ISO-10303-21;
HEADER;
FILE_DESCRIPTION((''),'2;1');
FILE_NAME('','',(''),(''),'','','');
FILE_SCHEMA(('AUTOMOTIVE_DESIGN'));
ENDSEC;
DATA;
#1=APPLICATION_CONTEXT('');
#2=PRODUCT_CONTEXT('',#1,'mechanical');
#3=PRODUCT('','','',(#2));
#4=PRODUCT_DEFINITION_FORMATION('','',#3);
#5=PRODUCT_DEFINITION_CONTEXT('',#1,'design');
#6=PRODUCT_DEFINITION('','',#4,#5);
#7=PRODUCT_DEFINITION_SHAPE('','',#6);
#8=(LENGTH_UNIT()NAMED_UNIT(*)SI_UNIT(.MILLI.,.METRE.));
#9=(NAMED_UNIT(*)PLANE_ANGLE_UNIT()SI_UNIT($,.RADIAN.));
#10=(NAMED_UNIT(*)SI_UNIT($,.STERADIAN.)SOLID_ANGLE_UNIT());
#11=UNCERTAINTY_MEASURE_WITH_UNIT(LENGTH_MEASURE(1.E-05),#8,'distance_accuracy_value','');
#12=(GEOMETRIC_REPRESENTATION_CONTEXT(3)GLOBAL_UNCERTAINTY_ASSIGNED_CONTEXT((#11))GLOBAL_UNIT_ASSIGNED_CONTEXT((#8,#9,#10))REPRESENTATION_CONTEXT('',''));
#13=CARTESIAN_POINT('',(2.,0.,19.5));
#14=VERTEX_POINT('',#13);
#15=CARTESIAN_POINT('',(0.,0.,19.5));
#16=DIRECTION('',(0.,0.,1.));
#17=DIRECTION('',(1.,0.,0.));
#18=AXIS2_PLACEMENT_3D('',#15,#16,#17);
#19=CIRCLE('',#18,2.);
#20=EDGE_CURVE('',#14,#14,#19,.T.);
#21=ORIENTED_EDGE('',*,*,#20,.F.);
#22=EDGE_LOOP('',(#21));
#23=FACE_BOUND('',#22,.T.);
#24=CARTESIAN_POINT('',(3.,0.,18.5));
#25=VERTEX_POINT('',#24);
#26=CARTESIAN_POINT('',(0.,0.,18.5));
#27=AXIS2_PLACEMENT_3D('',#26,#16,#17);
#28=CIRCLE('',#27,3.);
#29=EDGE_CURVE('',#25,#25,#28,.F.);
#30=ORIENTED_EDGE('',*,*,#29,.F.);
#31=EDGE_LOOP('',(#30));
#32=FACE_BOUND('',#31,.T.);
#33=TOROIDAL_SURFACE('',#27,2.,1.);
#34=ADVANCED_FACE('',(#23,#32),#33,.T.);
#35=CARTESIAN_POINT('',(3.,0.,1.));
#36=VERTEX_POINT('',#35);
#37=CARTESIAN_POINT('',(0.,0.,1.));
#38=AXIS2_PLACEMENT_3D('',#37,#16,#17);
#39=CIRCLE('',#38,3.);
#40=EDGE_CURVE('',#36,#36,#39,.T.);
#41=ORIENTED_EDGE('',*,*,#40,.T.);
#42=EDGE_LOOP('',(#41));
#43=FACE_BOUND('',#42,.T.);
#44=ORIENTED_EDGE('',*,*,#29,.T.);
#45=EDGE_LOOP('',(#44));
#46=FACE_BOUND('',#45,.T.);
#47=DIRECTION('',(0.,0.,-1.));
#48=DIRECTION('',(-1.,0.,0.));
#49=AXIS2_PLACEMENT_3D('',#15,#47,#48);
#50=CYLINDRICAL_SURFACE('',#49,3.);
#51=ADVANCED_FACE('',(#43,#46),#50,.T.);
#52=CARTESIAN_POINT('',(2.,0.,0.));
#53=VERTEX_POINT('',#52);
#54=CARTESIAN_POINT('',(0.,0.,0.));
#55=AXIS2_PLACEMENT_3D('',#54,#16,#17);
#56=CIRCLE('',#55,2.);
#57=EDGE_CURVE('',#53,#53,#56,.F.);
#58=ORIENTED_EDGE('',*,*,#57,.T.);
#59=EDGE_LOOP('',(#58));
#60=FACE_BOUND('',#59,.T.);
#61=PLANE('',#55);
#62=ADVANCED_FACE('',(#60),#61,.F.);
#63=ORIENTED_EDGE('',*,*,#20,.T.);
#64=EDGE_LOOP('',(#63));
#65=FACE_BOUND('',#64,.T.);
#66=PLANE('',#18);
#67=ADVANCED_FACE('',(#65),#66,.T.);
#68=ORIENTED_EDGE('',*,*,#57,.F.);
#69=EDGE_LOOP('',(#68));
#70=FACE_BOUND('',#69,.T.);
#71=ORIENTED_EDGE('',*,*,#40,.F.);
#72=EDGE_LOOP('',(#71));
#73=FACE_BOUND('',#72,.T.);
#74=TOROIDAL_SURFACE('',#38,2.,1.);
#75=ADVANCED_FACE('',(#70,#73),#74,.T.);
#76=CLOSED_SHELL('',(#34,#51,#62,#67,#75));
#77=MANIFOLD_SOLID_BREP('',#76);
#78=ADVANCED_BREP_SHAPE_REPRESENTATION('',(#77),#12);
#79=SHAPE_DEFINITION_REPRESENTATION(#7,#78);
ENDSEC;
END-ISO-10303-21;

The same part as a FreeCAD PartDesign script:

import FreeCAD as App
import Part
import Sketcher

V = App.Vector
Q = App.Units.Quantity


def edges_at(feature, points):
    """Names of the edges that pass closest to the given points."""
    edges = feature.Shape.Edges
    near = lambda p: min(range(len(edges)), key=lambda i: edges[i].distToShape(Part.Vertex(*p))[0])
    return sorted({f"Edge{near(p) + 1}" for p in points})

doc = App.newDocument("Part")
body = doc.addObject("PartDesign::Body", "Body")

# Sketch on XY plane
sketch1 = body.newObject("Sketcher::SketchObject", "Sketch")
sketch1.AttachmentSupport = (doc.getObject("XY_Plane"), [""])
sketch1.MapMode = "FlatFace"
sketch1.addGeometry(Part.Circle(V(0, 0, 0), V(0, 0, 1), 3), False)
sketch1.addConstraint([
    Sketcher.Constraint("Coincident", 0, 3, -1, 1),
    Sketcher.Constraint("Diameter", 0, Q("6 mm")),
])
pad1 = body.newObject("PartDesign::Pad", "Pad")
pad1.Profile = sketch1
pad1.Length = 19.5
doc.recompute()

fillet = body.newObject("PartDesign::Fillet", "Fillet")
fillet.Base = (pad1, edges_at(pad1, [(-3, 0, 0), (-3, 0, 19.5)]))
fillet.Radius = 1

doc.recompute()
